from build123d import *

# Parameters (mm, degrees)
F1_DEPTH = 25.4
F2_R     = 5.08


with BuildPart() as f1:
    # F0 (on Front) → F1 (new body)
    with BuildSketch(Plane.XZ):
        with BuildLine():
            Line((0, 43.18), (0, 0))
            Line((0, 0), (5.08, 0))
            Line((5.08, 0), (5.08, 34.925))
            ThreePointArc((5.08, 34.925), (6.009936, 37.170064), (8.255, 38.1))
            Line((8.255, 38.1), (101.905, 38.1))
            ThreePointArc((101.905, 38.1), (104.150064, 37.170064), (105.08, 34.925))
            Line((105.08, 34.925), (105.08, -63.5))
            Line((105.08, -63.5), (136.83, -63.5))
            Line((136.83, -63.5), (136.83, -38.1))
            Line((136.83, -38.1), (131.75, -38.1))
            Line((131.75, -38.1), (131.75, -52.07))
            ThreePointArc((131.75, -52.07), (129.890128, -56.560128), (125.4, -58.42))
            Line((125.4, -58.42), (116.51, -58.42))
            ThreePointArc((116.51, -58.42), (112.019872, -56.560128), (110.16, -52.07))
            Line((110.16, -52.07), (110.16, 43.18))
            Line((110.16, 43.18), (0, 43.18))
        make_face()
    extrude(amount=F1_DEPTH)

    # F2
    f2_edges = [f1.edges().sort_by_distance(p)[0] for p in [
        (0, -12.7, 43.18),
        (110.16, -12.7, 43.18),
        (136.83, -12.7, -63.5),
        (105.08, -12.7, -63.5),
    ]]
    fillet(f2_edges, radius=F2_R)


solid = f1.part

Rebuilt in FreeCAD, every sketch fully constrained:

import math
import FreeCAD as App
import Part
import Sketcher

V = App.Vector
Q = App.Units.Quantity


def edges_at(feature, points):
    """Names of the edges that pass closest to the given points."""
    edges = feature.Shape.Edges
    near = lambda p: min(range(len(edges)), key=lambda i: edges[i].distToShape(Part.Vertex(*p))[0])
    return sorted({f"Edge{near(p) + 1}" for p in points})

doc = App.newDocument("Part")
body = doc.addObject("PartDesign::Body", "Body")

sketch1 = doc.addObject("Sketcher::SketchObject", "Sketch")
body.addObject(sketch1)
sketch1.AttachmentSupport = (doc.XZ_Plane, [""])
sketch1.MapMode = "FlatFace"
sketch1.addGeometry(Part.LineSegment(V(0, 43.2, 0), V(0, 0, 0)), False)
sketch1.addGeometry(Part.LineSegment(V(0, 0, 0), V(5.1, 0, 0)), False)
sketch1.addGeometry(Part.LineSegment(V(5.1, 0, 0), V(5.1, 34.9, 0)), False)
sketch1.addGeometry(Part.ArcOfCircle(Part.Circle(V(8.3, 34.9, 0), V(0, 0, 1), 3.2), math.radians(90), math.radians(180)), False)
sketch1.addGeometry(Part.LineSegment(V(8.3, 38.1, 0), V(101.9, 38.1, 0)), False)
sketch1.addGeometry(Part.ArcOfCircle(Part.Circle(V(101.9, 34.9, 0), V(0, 0, 1), 3.2), math.radians(0), math.radians(90)), False)
sketch1.addGeometry(Part.LineSegment(V(105.1, 34.9, 0), V(105.1, -63.5, 0)), False)
sketch1.addGeometry(Part.LineSegment(V(105.1, -63.5, 0), V(136.8, -63.5, 0)), False)
sketch1.addGeometry(Part.LineSegment(V(136.8, -63.5, 0), V(136.8, -38.1, 0)), False)
sketch1.addGeometry(Part.LineSegment(V(136.8, -38.1, 0), V(131.8, -38.1, 0)), False)
sketch1.addGeometry(Part.LineSegment(V(131.8, -38.1, 0), V(131.8, -52.1, 0)), False)
sketch1.addGeometry(Part.ArcOfCircle(Part.Circle(V(125.4, -52.1, 0), V(0, 0, 1), 6.4), math.radians(-90), math.radians(0)), False)
sketch1.addGeometry(Part.LineSegment(V(125.4, -58.4, 0), V(116.5, -58.4, 0)), False)
sketch1.addGeometry(Part.ArcOfCircle(Part.Circle(V(116.5, -52.1, 0), V(0, 0, 1), 6.4), math.radians(-180), math.radians(-90)), False)
sketch1.addGeometry(Part.LineSegment(V(110.2, -52.1, 0), V(110.2, 43.2, 0)), False)
sketch1.addGeometry(Part.LineSegment(V(110.2, 43.2, 0), V(0, 43.2, 0)), False)
sketch1.addConstraint(Sketcher.Constraint("Coincident", 0, 2, 1, 1))
sketch1.addConstraint(Sketcher.Constraint("Coincident", 1, 2, 2, 1))
sketch1.addConstraint(Sketcher.Constraint("Tangent", 2, 2, 3, 2))
sketch1.addConstraint(Sketcher.Constraint("Tangent", 3, 1, 4, 1))
sketch1.addConstraint(Sketcher.Constraint("Tangent", 4, 2, 5, 2))
sketch1.addConstraint(Sketcher.Constraint("Tangent", 5, 1, 6, 1))
sketch1.addConstraint(Sketcher.Constraint("Coincident", 6, 2, 7, 1))
sketch1.addConstraint(Sketcher.Constraint("Coincident", 7, 2, 8, 1))
sketch1.addConstraint(Sketcher.Constraint("Coincident", 8, 2, 9, 1))
sketch1.addConstraint(Sketcher.Constraint("Coincident", 9, 2, 10, 1))
sketch1.addConstraint(Sketcher.Constraint("Tangent", 10, 2, 11, 2))
sketch1.addConstraint(Sketcher.Constraint("Tangent", 11, 1, 12, 1))
sketch1.addConstraint(Sketcher.Constraint("Tangent", 12, 2, 13, 2))
sketch1.addConstraint(Sketcher.Constraint("Tangent", 13, 1, 14, 1))
sketch1.addConstraint(Sketcher.Constraint("Coincident", 14, 2, 15, 1))
sketch1.addConstraint(Sketcher.Constraint("Coincident", 15, 2, 0, 1))
sketch1.addConstraint(Sketcher.Constraint("Vertical", 0))
sketch1.addConstraint(Sketcher.Constraint("Horizontal", 1))
sketch1.addConstraint(Sketcher.Constraint("Vertical", 2))
sketch1.addConstraint(Sketcher.Constraint("Horizontal", 4))
sketch1.addConstraint(Sketcher.Constraint("Vertical", 6))
sketch1.addConstraint(Sketcher.Constraint("Horizontal", 7))
sketch1.addConstraint(Sketcher.Constraint("Vertical", 8))
sketch1.addConstraint(Sketcher.Constraint("Horizontal", 9))
sketch1.addConstraint(Sketcher.Constraint("Vertical", 10))
sketch1.addConstraint(Sketcher.Constraint("Horizontal", 12))
sketch1.addConstraint(Sketcher.Constraint("Vertical", 14))
sketch1.addConstraint(Sketcher.Constraint("Horizontal", 15))
sketch1.addConstraint(Sketcher.Constraint("Coincident", 0, 2, -1, 1))
sketch1.addConstraint(Sketcher.Constraint("Equal", 3, 5))
sketch1.addConstraint(Sketcher.Constraint("Equal", 11, 13))
sketch1.addConstraint(Sketcher.Constraint("Equal", 1, 9))
sketch1.addConstraint(Sketcher.Constraint("DistanceY", 8, 1, 8, 2, Q("1 in")))
sketch1.addConstraint(Sketcher.Constraint("Radius", 11, Q("0.25 in")))
sketch1.addConstraint(Sketcher.Constraint("DistanceX", 1, 1, 1, 2, Q("0.2 in")))
sketch1.addConstraint(Sketcher.Constraint("DistanceY", 0, 2, 0, 1, Q("1.7 in")))
sketch1.addConstraint(Sketcher.Constraint("Radius", 3, Q("0.125 in")))
sketch1.addConstraint(Sketcher.Constraint("DistanceY", 6, 2, 4, 2, Q("4 in")))
sketch1.addConstraint(Sketcher.Constraint("DistanceX", 7, 1, 7, 2, Q("1.25 in")))
sketch1.addConstraint(Sketcher.Constraint("DistanceX", 12, 2, 12, 1, Q("0.35 in")))
sketch1.addConstraint(Sketcher.Constraint("DistanceY", 10, 2, 10, 1, Q("0.55 in")))
sketch1.addConstraint(Sketcher.Constraint("DistanceY", 14, 1, 14, 2, Q("3.75 in")))
sketch1.addConstraint(Sketcher.Constraint("DistanceX", 4, 1, 4, 2, Q("93.65 mm")))
pad1 = doc.addObject("PartDesign::Pad", "Pad")
body.addObject(pad1)
pad1.Profile = sketch1
pad1.Length = Q("1 in")
doc.recompute()

fillet = doc.addObject("PartDesign::Fillet", "Fillet")
body.addObject(fillet)
fillet.Base = (pad1, edges_at(pad1, [
    (0, -12.7, 43.18),
    (110.16, -12.7, 43.18),
    (136.83, -12.7, -63.5),
    (105.08, -12.7, -63.5),
]))
fillet.Radius = Q("0.2 in")

doc.recompute()
